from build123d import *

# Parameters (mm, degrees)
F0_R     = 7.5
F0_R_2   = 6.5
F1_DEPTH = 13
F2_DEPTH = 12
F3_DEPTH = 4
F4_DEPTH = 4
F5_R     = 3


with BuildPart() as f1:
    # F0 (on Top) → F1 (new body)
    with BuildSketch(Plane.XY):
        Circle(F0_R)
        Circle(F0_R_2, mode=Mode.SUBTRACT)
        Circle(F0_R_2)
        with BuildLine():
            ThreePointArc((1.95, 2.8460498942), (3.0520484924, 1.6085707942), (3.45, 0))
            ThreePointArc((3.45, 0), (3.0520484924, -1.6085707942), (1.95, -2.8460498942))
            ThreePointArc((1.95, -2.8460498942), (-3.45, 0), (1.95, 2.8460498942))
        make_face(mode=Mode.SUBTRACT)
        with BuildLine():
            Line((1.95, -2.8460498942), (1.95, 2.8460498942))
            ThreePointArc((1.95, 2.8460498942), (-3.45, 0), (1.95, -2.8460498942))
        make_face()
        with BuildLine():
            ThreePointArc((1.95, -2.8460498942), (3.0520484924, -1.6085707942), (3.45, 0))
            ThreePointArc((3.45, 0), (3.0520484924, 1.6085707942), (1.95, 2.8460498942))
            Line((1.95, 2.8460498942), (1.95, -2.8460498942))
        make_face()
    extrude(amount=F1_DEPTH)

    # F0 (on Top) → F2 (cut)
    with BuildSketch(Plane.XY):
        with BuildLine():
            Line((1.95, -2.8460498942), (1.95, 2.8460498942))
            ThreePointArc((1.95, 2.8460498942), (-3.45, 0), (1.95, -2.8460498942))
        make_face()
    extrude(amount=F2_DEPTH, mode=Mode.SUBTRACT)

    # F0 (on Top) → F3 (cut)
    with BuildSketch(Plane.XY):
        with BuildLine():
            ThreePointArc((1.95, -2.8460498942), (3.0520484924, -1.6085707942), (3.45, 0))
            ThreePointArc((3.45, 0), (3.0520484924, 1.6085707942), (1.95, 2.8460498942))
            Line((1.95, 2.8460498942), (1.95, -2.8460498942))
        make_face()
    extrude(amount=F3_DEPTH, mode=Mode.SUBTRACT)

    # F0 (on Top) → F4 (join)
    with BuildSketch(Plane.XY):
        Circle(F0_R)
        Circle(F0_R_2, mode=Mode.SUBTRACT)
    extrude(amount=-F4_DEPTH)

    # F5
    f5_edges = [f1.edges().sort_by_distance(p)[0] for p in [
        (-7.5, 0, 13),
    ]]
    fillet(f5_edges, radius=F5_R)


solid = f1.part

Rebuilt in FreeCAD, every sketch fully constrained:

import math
import FreeCAD as App
import Part
import Sketcher


def edges_at(feature, points):
    """Names of the edges that pass closest to the given points."""
    edges = feature.Shape.Edges
    near = lambda p: min(range(len(edges)), key=lambda i: edges[i].distToShape(Part.Vertex(*p))[0])
    return sorted({f"Edge{near(p) + 1}" for p in points})

doc = App.newDocument("Part")
body = doc.addObject("PartDesign::Body", "Body")

sketch1 = body.newObject("Sketcher::SketchObject", "Sketch")
sketch1.AttachmentSupport = (doc.getObject("XY_Plane"), [""])
sketch1.MapMode = "FlatFace"
sketch1.addGeometry(Part.Circle(App.Vector(0, 0, 0), App.Vector(0, 0, 1), 8), False)
sketch1.addConstraint(Sketcher.Constraint("Coincident", 0, 3, -1, 1))
sketch1.addConstraint(Sketcher.Constraint("Diameter", 0, 15.0))
pad1 = body.newObject("PartDesign::Pad", "Pad")
pad1.Profile = sketch1
pad1.Length = 13

sketch2 = body.newObject("Sketcher::SketchObject", "Sketch001")
sketch2.AttachmentSupport = (doc.getObject("XY_Plane"), [""])
sketch2.MapMode = "FlatFace"
sketch2.addGeometry(Part.LineSegment(App.Vector(1.9, -2.8, 0), App.Vector(1.9, 2.8, 0)), False)
sketch2.addGeometry(Part.ArcOfCircle(Part.Circle(App.Vector(0, 0, 0), App.Vector(0, 0, 1), 3.5), math.radians(56), math.radians(304)), False)
sketch2.addConstraint(Sketcher.Constraint("Coincident", 0, 1, 1, 2))
sketch2.addConstraint(Sketcher.Constraint("Coincident", 1, 1, 0, 2))
sketch2.addConstraint(Sketcher.Constraint("Vertical", 0))
sketch2.addConstraint(Sketcher.Constraint("Coincident", 1, 3, -1, 1))
sketch2.addConstraint(Sketcher.Constraint("Radius", 1, 3.45))
sketch2.addConstraint(Sketcher.Constraint("DistanceX", -1, 1, 0, 1, 1.95))
pocket1 = body.newObject("PartDesign::Pocket", "Pocket")
pocket1.Profile = sketch2
pocket1.Length = 12
pocket1.Reversed = True

sketch3 = body.newObject("Sketcher::SketchObject", "Sketch002")
sketch3.AttachmentSupport = (doc.getObject("XY_Plane"), [""])
sketch3.MapMode = "FlatFace"
sketch3.addGeometry(Part.ArcOfCircle(Part.Circle(App.Vector(0, 0, 0), App.Vector(0, 0, 1), 3.5), math.radians(-56), math.radians(0)), False)
sketch3.addGeometry(Part.ArcOfCircle(Part.Circle(App.Vector(0, 0, 0), App.Vector(0, 0, 1), 3.5), math.radians(0), math.radians(56)), False)
sketch3.addGeometry(Part.LineSegment(App.Vector(1.9, 2.8, 0), App.Vector(1.9, -2.8, 0)), False)
sketch3.addConstraint(Sketcher.Constraint("Tangent", 0, 2, 1, 1))
sketch3.addConstraint(Sketcher.Constraint("Coincident", 1, 2, 2, 1))
sketch3.addConstraint(Sketcher.Constraint("Coincident", 2, 2, 0, 1))
sketch3.addConstraint(Sketcher.Constraint("Vertical", 2))
sketch3.addConstraint(Sketcher.Constraint("Coincident", 0, 3, -1, 1))
sketch3.addConstraint(Sketcher.Constraint("Equal", 0, 1))
sketch3.addConstraint(Sketcher.Constraint("PointOnObject", 0, 2, -1))
sketch3.addConstraint(Sketcher.Constraint("Radius", 0, 3.45))
sketch3.addConstraint(Sketcher.Constraint("DistanceX", 1, 2, 0, 2, 1.5))
pocket2 = body.newObject("PartDesign::Pocket", "Pocket001")
pocket2.Profile = sketch3
pocket2.Length = 4
pocket2.Reversed = True

sketch4 = body.newObject("Sketcher::SketchObject", "Sketch003")
sketch4.AttachmentSupport = (doc.getObject("XY_Plane"), [""])
sketch4.MapMode = "FlatFace"
sketch4.addGeometry(Part.Circle(App.Vector(0, 0, 0), App.Vector(0, 0, 1), 8), False)
sketch4.addGeometry(Part.Circle(App.Vector(0, 0, 0), App.Vector(0, 0, 1), 6), False)
sketch4.addConstraint(Sketcher.Constraint("Coincident", 0, 3, -1, 1))
sketch4.addConstraint(Sketcher.Constraint("Coincident", 1, 3, -1, 1))
sketch4.addConstraint(Sketcher.Constraint("Diameter", 0, 15.0))
sketch4.addConstraint(Sketcher.Constraint("Diameter", 1, 13.0))
pad2 = body.newObject("PartDesign::Pad", "Pad001")
pad2.Profile = sketch4
pad2.Length = 4
pad2.Reversed = True
doc.recompute()

fillet = body.newObject("PartDesign::Fillet", "Fillet")
fillet.Base = (pad2, edges_at(pad2, [(-7.5, 0, 13)]))
fillet.Radius = 3

doc.recompute()
